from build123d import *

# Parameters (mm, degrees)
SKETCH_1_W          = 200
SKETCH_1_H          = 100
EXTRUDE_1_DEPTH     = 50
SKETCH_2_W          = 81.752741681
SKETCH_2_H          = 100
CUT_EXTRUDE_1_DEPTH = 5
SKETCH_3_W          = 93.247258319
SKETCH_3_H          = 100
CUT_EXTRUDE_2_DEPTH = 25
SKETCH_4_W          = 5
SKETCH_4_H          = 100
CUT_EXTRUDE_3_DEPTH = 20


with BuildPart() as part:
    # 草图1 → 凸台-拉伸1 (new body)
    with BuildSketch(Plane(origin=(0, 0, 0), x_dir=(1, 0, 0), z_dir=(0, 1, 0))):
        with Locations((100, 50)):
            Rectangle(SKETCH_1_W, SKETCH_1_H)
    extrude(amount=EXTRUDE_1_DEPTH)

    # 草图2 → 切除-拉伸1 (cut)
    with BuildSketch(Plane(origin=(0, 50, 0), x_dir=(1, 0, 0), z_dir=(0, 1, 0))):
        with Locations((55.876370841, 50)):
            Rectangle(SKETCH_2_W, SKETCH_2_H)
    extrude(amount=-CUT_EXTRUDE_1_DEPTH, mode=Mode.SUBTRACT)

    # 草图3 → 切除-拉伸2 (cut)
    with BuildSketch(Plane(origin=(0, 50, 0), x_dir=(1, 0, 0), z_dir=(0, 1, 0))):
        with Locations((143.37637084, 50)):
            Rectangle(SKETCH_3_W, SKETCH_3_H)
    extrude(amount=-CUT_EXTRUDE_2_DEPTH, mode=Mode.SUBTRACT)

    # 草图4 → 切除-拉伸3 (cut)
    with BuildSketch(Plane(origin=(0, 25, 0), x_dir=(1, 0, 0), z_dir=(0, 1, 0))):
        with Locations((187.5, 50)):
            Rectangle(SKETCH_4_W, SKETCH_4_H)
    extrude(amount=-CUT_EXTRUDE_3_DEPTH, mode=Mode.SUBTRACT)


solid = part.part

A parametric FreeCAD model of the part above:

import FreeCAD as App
import Part
import Sketcher


def add_polygon(sketch, points):
    """Adds a closed chain of lines whose ends are joined by coincident constraints."""
    first, n = sketch.GeometryCount, len(points)
    for a, b in zip(points, points[1:] + points[:1]):
        sketch.addGeometry(Part.LineSegment(App.Vector(*a, 0), App.Vector(*b, 0)), False)
    for i in range(n):
        sketch.addConstraint(Sketcher.Constraint("Coincident", first + i, 2, first + (i + 1) % n, 1))

doc = App.newDocument("Part")
params = doc.addObject("Spreadsheet::Sheet", "Params")
for row, (alias, value) in enumerate([
    ("sketch1_width", "200 mm"),
    ("sketch1_height", "100 mm"),
    ("pad1_length", "50 mm"),
    ("sketch2_height", "100 mm"),
    ("pocket1_length", "5 mm"),
    ("sketch3_height", "100 mm"),
    ("pocket2_length", "25 mm"),
    ("sketch4_width", "5 mm"),
    ("sketch4_height", "100 mm"),
    ("pocket3_length", "20 mm"),
], start=1):
    params.set(f"A{row}", alias)
    params.set(f"B{row}", "=" + value)
    params.setAlias(f"B{row}", alias)

body = doc.addObject("PartDesign::Body", "Body")

sketch1 = body.newObject("Sketcher::SketchObject", "Sketch")
sketch1.AttachmentSupport = (doc.getObject("XZ_Plane"), [""])
sketch1.MapMode = "FlatFace"
add_polygon(sketch1, [(0, -100), (0, 0), (200, 0), (200, -100)])
sketch1.addConstraint([
    Sketcher.Constraint("Vertical", 0),
    Sketcher.Constraint("Horizontal", 1),
    Sketcher.Constraint("Vertical", 2),
    Sketcher.Constraint("Horizontal", 3),
    Sketcher.Constraint("Coincident", 0, 2, -1, 1),
    Sketcher.Constraint("DistanceX", 1, 1, 1, 2, 200.0),
    Sketcher.Constraint("DistanceY", 0, 1, 0, 2, 100.0),
])
sketch1.setExpression("Constraints[9]", "Params.sketch1_width")
sketch1.setExpression("Constraints[10]", "Params.sketch1_height")
pad1 = body.newObject("PartDesign::Pad", "Pad")
pad1.Profile = sketch1
pad1.setExpression("Length", "Params.pad1_length")
pad1.Reversed = True

sketch2 = body.newObject("Sketcher::SketchObject", "Sketch001")
sketch2.AttachmentSupport = (doc.getObject("XZ_Plane"), [""])
sketch2.MapMode = "FlatFace"
sketch2.AttachmentOffset = App.Placement(App.Vector(0, 0, -50), App.Rotation())
add_polygon(sketch2, [(15, -100), (15, 0), (97, 0), (97, -100)])
sketch2.addConstraint([
    Sketcher.Constraint("Vertical", 0),
    Sketcher.Constraint("Horizontal", 1),
    Sketcher.Constraint("Vertical", 2),
    Sketcher.Constraint("Horizontal", 3),
    Sketcher.Constraint("PointOnObject", 0, 2, -1),
    Sketcher.Constraint("DistanceY", 0, 1, 0, 2, 100.0),
    Sketcher.Constraint("DistanceX", -1, 1, 0, 2, 15.0),
    Sketcher.Constraint("DistanceX", 1, 1, 1, 2, 81.752742),
])
sketch2.setExpression("Constraints[9]", "Params.sketch2_height")
pocket1 = body.newObject("PartDesign::Pocket", "Pocket")
pocket1.Profile = sketch2
pocket1.setExpression("Length", "Params.pocket1_length")
pocket1.Reversed = True

sketch3 = body.newObject("Sketcher::SketchObject", "Sketch002")
sketch3.AttachmentSupport = (doc.getObject("XZ_Plane"), [""])
sketch3.MapMode = "FlatFace"
sketch3.AttachmentOffset = App.Placement(App.Vector(0, 0, -50), App.Rotation())
add_polygon(sketch3, [(97, -100), (97, 0), (190, 0), (190, -100)])
sketch3.addConstraint([
    Sketcher.Constraint("Vertical", 0),
    Sketcher.Constraint("Horizontal", 1),
    Sketcher.Constraint("Vertical", 2),
    Sketcher.Constraint("Horizontal", 3),
    Sketcher.Constraint("PointOnObject", 0, 2, -1),
    Sketcher.Constraint("DistanceY", 0, 1, 0, 2, 100.0),
    Sketcher.Constraint("DistanceX", -1, 1, 1, 2, 190.0),
    Sketcher.Constraint("DistanceX", 1, 1, 1, 2, 93.247258),
])
sketch3.setExpression("Constraints[9]", "Params.sketch3_height")
pocket2 = body.newObject("PartDesign::Pocket", "Pocket001")
pocket2.Profile = sketch3
pocket2.setExpression("Length", "Params.pocket2_length")
pocket2.Reversed = True

sketch4 = body.newObject("Sketcher::SketchObject", "Sketch003")
sketch4.AttachmentSupport = (doc.getObject("XZ_Plane"), [""])
sketch4.MapMode = "FlatFace"
sketch4.AttachmentOffset = App.Placement(App.Vector(0, 0, -25), App.Rotation())
add_polygon(sketch4, [(185, -100), (185, 0), (190, 0), (190, -100)])
sketch4.addConstraint([
    Sketcher.Constraint("Vertical", 0),
    Sketcher.Constraint("Horizontal", 1),
    Sketcher.Constraint("Vertical", 2),
    Sketcher.Constraint("Horizontal", 3),
    Sketcher.Constraint("PointOnObject", 0, 2, -1),
    Sketcher.Constraint("DistanceX", 1, 1, 1, 2, 5.0),
    Sketcher.Constraint("DistanceY", 0, 1, 0, 2, 100.0),
    Sketcher.Constraint("DistanceX", -1, 1, 0, 2, 185.0),
])
sketch4.setExpression("Constraints[9]", "Params.sketch4_width")
sketch4.setExpression("Constraints[10]", "Params.sketch4_height")
pocket3 = body.newObject("PartDesign::Pocket", "Pocket002")
pocket3.Profile = sketch4
pocket3.setExpression("Length", "Params.pocket3_length")
pocket3.Reversed = True

doc.recompute()
